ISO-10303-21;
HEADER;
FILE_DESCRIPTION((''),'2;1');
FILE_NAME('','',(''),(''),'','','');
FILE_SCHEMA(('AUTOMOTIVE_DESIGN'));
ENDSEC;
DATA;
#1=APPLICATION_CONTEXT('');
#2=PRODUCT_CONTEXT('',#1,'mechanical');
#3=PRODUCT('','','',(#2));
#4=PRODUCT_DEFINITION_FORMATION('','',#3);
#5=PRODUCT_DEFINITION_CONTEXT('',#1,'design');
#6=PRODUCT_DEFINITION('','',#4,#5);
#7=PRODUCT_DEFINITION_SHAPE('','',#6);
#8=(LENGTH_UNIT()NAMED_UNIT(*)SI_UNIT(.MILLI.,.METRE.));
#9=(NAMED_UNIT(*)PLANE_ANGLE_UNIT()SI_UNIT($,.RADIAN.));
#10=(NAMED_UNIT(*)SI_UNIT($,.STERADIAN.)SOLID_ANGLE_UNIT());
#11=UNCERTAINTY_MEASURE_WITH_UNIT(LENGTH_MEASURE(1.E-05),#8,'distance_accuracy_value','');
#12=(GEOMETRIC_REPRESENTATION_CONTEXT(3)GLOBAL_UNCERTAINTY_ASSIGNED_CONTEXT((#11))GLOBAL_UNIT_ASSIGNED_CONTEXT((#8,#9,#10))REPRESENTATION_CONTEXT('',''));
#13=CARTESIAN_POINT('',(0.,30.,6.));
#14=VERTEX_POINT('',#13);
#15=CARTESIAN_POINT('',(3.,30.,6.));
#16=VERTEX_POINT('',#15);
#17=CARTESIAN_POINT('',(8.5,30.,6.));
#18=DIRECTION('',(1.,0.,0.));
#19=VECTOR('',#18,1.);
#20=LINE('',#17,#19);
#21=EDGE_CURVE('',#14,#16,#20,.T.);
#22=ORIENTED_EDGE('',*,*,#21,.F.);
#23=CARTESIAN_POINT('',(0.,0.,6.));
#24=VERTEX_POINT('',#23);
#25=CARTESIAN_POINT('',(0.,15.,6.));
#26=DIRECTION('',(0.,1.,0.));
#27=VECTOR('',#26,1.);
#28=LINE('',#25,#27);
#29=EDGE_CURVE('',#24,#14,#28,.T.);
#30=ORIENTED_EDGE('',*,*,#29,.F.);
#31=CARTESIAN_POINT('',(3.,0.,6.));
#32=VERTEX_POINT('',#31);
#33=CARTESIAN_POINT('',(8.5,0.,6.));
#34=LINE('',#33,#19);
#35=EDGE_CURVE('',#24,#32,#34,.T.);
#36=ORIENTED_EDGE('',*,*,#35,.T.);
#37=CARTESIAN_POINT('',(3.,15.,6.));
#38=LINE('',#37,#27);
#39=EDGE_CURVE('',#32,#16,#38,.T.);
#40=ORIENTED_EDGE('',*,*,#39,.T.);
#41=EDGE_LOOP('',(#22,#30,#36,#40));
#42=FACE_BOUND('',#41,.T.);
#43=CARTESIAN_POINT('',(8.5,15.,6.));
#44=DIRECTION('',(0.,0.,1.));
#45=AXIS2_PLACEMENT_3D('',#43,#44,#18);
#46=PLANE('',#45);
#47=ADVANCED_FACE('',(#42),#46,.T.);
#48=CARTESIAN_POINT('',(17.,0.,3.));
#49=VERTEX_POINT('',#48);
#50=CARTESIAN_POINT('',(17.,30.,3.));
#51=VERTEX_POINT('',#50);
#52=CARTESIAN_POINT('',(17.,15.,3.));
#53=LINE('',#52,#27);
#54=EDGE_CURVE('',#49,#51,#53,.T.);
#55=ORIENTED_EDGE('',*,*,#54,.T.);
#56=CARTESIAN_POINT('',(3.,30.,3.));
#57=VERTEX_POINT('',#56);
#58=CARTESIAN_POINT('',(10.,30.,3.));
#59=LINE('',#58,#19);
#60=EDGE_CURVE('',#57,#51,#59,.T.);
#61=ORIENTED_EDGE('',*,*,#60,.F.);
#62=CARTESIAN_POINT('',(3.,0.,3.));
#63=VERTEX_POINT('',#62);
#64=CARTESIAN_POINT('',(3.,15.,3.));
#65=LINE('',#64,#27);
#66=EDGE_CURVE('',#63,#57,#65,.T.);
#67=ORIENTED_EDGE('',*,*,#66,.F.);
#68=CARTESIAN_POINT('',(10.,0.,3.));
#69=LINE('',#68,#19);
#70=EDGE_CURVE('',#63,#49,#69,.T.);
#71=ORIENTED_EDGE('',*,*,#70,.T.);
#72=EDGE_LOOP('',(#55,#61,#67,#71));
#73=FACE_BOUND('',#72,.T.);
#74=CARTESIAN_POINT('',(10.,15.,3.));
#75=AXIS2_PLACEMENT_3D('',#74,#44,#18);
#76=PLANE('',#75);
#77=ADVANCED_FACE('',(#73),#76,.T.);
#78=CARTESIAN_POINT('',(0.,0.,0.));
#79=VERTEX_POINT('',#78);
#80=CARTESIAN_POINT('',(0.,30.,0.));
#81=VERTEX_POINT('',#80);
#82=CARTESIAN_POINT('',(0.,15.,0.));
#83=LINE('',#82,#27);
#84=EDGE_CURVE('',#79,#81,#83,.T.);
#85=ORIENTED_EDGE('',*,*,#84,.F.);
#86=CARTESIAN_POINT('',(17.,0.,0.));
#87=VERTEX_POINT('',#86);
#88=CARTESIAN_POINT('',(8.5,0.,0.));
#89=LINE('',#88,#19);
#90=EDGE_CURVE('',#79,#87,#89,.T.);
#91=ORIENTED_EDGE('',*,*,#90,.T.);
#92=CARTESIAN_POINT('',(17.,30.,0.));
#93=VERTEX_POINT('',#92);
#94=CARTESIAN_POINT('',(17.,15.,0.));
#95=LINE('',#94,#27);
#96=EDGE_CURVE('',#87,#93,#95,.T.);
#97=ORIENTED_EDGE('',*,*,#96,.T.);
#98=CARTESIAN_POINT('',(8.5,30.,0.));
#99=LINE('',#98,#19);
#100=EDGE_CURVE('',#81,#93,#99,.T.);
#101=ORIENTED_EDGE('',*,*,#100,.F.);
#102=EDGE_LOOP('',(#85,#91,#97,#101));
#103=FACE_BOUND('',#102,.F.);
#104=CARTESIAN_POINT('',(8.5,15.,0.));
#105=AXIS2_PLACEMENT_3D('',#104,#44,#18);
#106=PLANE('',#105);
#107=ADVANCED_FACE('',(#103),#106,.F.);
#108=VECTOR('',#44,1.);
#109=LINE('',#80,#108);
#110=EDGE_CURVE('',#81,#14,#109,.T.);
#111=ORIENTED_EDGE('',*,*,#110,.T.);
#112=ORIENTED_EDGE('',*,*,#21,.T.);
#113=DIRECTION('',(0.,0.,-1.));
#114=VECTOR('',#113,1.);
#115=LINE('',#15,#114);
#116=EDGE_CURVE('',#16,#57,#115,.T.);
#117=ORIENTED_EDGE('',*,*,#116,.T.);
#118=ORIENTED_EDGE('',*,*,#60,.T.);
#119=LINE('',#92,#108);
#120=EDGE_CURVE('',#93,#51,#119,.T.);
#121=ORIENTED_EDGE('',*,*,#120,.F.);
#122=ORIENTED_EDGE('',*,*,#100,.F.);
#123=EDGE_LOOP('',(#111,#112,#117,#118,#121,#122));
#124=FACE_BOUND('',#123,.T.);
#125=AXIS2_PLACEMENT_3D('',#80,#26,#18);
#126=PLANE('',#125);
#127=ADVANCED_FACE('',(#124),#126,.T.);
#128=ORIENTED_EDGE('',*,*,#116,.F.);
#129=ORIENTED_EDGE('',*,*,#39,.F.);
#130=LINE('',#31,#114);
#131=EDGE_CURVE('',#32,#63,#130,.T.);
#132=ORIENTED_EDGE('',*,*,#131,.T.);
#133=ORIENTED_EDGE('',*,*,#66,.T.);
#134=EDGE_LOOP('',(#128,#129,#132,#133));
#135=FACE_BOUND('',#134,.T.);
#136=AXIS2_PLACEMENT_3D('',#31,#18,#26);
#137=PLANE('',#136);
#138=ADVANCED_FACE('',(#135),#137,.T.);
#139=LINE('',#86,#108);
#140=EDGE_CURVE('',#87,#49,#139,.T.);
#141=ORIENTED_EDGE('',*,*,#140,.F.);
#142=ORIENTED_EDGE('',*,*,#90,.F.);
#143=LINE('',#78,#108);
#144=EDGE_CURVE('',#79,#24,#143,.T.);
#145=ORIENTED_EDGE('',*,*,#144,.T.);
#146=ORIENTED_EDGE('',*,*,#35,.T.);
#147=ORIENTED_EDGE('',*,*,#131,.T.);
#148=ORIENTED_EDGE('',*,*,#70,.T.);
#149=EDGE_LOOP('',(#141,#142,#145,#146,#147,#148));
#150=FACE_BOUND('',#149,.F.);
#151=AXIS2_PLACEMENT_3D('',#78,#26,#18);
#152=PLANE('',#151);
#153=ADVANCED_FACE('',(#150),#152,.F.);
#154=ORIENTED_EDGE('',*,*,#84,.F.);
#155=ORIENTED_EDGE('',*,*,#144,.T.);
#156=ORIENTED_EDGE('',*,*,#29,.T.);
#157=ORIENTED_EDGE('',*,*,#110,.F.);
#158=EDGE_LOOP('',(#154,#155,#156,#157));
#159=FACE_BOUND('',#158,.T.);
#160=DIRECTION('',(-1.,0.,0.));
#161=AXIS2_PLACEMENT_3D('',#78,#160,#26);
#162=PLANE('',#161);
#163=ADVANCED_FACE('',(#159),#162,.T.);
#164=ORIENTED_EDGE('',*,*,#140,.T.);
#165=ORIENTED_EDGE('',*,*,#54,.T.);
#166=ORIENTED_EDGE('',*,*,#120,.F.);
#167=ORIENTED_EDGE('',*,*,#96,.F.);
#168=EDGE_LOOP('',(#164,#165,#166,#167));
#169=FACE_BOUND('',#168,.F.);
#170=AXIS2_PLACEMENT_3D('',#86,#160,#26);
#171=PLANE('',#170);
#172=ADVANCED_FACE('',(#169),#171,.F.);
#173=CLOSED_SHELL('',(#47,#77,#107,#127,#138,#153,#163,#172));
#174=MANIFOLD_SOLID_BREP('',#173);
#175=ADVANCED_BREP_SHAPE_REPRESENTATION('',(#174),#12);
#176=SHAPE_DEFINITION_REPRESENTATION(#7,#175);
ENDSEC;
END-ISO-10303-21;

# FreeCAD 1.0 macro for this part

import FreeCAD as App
import Part
import Sketcher

V = App.Vector
Q = App.Units.Quantity

doc = App.newDocument("Part")
params = doc.addObject("Spreadsheet::Sheet", "Params")
for row, (alias, value) in enumerate([
    ("sketch1_width", "17 mm"),
    ("sketch1_height", "30 mm"),
    ("pad1_length", "6 mm"),
    ("sketch2_width", "14 mm"),
    ("sketch2_height", "30 mm"),
    ("pocket1_length", "3 mm"),
], start=1):
    params.set(f"A{row}", alias)
    params.set(f"B{row}", "=" + value)
    params.setAlias(f"B{row}", alias)

body = doc.addObject("PartDesign::Body", "Body")

# Sketch on XY plane
sketch1 = doc.addObject("Sketcher::SketchObject", "Sketch")
body.addObject(sketch1)
sketch1.AttachmentSupport = (doc.XY_Plane, [""])
sketch1.MapMode = "FlatFace"
sketch1.addGeometry([
    Part.LineSegment(V(0, 30, 0), V(0, 0, 0)),
    Part.LineSegment(V(0, 0, 0), V(17, 0, 0)),
    Part.LineSegment(V(17, 0, 0), V(17, 30, 0)),
    Part.LineSegment(V(17, 30, 0), V(0, 30, 0)),
], False)
sketch1.addConstraint([
    Sketcher.Constraint("Coincident", 0, 2, 1, 1),
    Sketcher.Constraint("Coincident", 1, 2, 2, 1),
    Sketcher.Constraint("Coincident", 2, 2, 3, 1),
    Sketcher.Constraint("Coincident", 3, 2, 0, 1),
    Sketcher.Constraint("Vertical", 0),
    Sketcher.Constraint("Horizontal", 1),
    Sketcher.Constraint("Vertical", 2),
    Sketcher.Constraint("Horizontal", 3),
    Sketcher.Constraint("Coincident", 0, 2, -1, 1),
    Sketcher.Constraint("DistanceX", 1, 1, 1, 2, Q("17 mm")),
    Sketcher.Constraint("DistanceY", 0, 2, 0, 1, Q("30 mm")),
])
sketch1.setExpression("Constraints[9]", "Params.sketch1_width")
sketch1.setExpression("Constraints[10]", "Params.sketch1_height")
pad1 = doc.addObject("PartDesign::Pad", "Pad")
body.addObject(pad1)
pad1.Profile = sketch1
pad1.setExpression("Length", "Params.pad1_length")

# Sketch on XY plane
sketch2 = doc.addObject("Sketcher::SketchObject", "Sketch001")
body.addObject(sketch2)
sketch2.AttachmentSupport = (doc.XY_Plane, [""])
sketch2.MapMode = "FlatFace"
sketch2.AttachmentOffset = App.Placement(V(0, 0, 6), App.Rotation())
sketch2.addGeometry([
    Part.LineSegment(V(3, 30, 0), V(3, 0, 0)),
    Part.LineSegment(V(3, 0, 0), V(17, 0, 0)),
    Part.LineSegment(V(17, 0, 0), V(17, 30, 0)),
    Part.LineSegment(V(17, 30, 0), V(3, 30, 0)),
], False)
sketch2.addConstraint([
    Sketcher.Constraint("Coincident", 0, 2, 1, 1),
    Sketcher.Constraint("Coincident", 1, 2, 2, 1),
    Sketcher.Constraint("Coincident", 2, 2, 3, 1),
    Sketcher.Constraint("Coincident", 3, 2, 0, 1),
    Sketcher.Constraint("Vertical", 0),
    Sketcher.Constraint("Horizontal", 1),
    Sketcher.Constraint("Vertical", 2),
    Sketcher.Constraint("Horizontal", 3),
    Sketcher.Constraint("PointOnObject", 0, 2, -1),
    Sketcher.Constraint("DistanceX", 1, 1, 1, 2, Q("14 mm")),
    Sketcher.Constraint("DistanceY", 0, 2, 0, 1, Q("30 mm")),
    Sketcher.Constraint("DistanceX", -1, 1, 0, 2, Q("3 mm")),
])
sketch2.setExpression("Constraints[9]", "Params.sketch2_width")
sketch2.setExpression("Constraints[10]", "Params.sketch2_height")
pocket1 = doc.addObject("PartDesign::Pocket", "Pocket")
body.addObject(pocket1)
pocket1.Profile = sketch2
pocket1.setExpression("Length", "Params.pocket1_length")

doc.recompute()
